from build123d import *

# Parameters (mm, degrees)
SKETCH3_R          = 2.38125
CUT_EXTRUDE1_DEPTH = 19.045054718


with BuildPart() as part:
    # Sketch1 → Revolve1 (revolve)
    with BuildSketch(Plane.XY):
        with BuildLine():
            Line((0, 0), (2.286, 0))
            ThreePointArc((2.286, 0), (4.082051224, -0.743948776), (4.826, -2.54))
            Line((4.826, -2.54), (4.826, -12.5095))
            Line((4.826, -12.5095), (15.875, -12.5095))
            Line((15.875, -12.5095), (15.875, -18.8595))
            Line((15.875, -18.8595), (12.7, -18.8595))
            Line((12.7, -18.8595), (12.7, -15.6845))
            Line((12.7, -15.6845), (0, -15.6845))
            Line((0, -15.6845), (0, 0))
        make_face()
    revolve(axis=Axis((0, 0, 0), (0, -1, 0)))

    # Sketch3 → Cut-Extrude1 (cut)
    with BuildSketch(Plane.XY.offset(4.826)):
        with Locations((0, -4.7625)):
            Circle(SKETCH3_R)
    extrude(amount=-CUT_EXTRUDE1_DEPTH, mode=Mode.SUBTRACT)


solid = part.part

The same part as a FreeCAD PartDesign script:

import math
import FreeCAD as App
import Part
import Sketcher
Q = App.Units.Quantity

doc = App.newDocument("Part")
params = doc.addObject("Spreadsheet::Sheet", "Params")
for row, (alias, value) in enumerate([
    ("sketch1_radius", "0.1 in"),
    ("sketch1_width", "0.5 in"),
    ("sketch1_width2", "0.09 in"),
    ("sketch1_height", "0.25 in"),
    ("sketch1_width3", "0.125 in"),
    ("revolution_angle", "360 deg"),
    ("sketch2_diameter", "0.1875 in"),
    ("pocket1_length", "19.045055 mm"),
], start=1):
    params.set(f"A{row}", alias)
    params.set(f"B{row}", "=" + value)
    params.setAlias(f"B{row}", alias)

body = doc.addObject("PartDesign::Body", "Body")

sketch1 = doc.addObject("Sketcher::SketchObject", "Sketch")
body.addObject(sketch1)
sketch1.AttachmentSupport = (doc.XY_Plane, [""])
sketch1.MapMode = "FlatFace"
sketch1.addGeometry([
    Part.LineSegment(App.Vector(2.3, 0, 0), App.Vector(0, 0, 0)),
    Part.LineSegment(App.Vector(0, 0, 0), App.Vector(0, -15.7, 0)),
    Part.LineSegment(App.Vector(0, -15.7, 0), App.Vector(12.7, -15.7, 0)),
    Part.LineSegment(App.Vector(12.7, -15.7, 0), App.Vector(12.7, -18.9, 0)),
    Part.LineSegment(App.Vector(12.7, -18.9, 0), App.Vector(15.9, -18.9, 0)),
    Part.LineSegment(App.Vector(15.9, -18.9, 0), App.Vector(15.9, -12.5, 0)),
    Part.LineSegment(App.Vector(15.9, -12.5, 0), App.Vector(4.8, -12.5, 0)),
    Part.LineSegment(App.Vector(4.8, -12.5, 0), App.Vector(4.8, -2.5, 0)),
    Part.ArcOfCircle(Part.Circle(App.Vector(2.3, -2.5, 0), App.Vector(0, 0, 1), 2.5), math.radians(0), math.radians(90)),
], False)
sketch1.addConstraint([
    Sketcher.Constraint("Coincident", 0, 2, 1, 1),
    Sketcher.Constraint("Coincident", 1, 2, 2, 1),
    Sketcher.Constraint("Coincident", 2, 2, 3, 1),
    Sketcher.Constraint("Coincident", 3, 2, 4, 1),
    Sketcher.Constraint("Coincident", 4, 2, 5, 1),
    Sketcher.Constraint("Coincident", 5, 2, 6, 1),
    Sketcher.Constraint("Coincident", 6, 2, 7, 1),
    Sketcher.Constraint("Tangent", 7, 2, 8, 1),
    Sketcher.Constraint("Tangent", 8, 2, 0, 1),
    Sketcher.Constraint("Horizontal", 0),
    Sketcher.Constraint("Vertical", 1),
    Sketcher.Constraint("Horizontal", 2),
    Sketcher.Constraint("Vertical", 3),
    Sketcher.Constraint("Horizontal", 4),
    Sketcher.Constraint("Vertical", 5),
    Sketcher.Constraint("Horizontal", 6),
    Sketcher.Constraint("Vertical", 7),
    Sketcher.Constraint("Coincident", 0, 2, -1, 1),
    Sketcher.Constraint("Equal", 4, 3),
    Sketcher.Constraint("Radius", 8, Q("0.1 in")),
    Sketcher.Constraint("DistanceX", 2, 1, 2, 2, Q("0.5 in")),
    Sketcher.Constraint("DistanceX", 0, 2, 0, 1, Q("0.09 in")),
    Sketcher.Constraint("DistanceY", 5, 1, 5, 2, Q("0.25 in")),
    Sketcher.Constraint("DistanceX", 4, 1, 4, 2, Q("0.125 in")),
    Sketcher.Constraint("DistanceY", 1, 2, 1, 1, Q("0.6175 in")),
])
sketch1.setExpression("Constraints[19]", "Params.sketch1_radius")
sketch1.setExpression("Constraints[20]", "Params.sketch1_width")
sketch1.setExpression("Constraints[21]", "Params.sketch1_width2")
sketch1.setExpression("Constraints[22]", "Params.sketch1_height")
sketch1.setExpression("Constraints[23]", "Params.sketch1_width3")
revolution = doc.addObject("PartDesign::Revolution", "Revolution")
body.addObject(revolution)
revolution.Profile = sketch1
revolution.ReferenceAxis = (sketch1, ["V_Axis"])
revolution.setExpression("Angle", "Params.revolution_angle")

sketch2 = doc.addObject("Sketcher::SketchObject", "Sketch001")
body.addObject(sketch2)
sketch2.AttachmentSupport = (doc.XY_Plane, [""])
sketch2.MapMode = "FlatFace"
sketch2.AttachmentOffset = App.Placement(App.Vector(0, 0, 0.19 * 25.4), App.Rotation())
sketch2.addGeometry(Part.Circle(App.Vector(0, -4.8, 0), App.Vector(0, 0, 1), 2.4), False)
sketch2.addConstraint([
    Sketcher.Constraint("PointOnObject", 0, 3, -2),
    Sketcher.Constraint("Diameter", 0, Q("0.1875 in")),
    Sketcher.Constraint("DistanceY", 0, 3, -1, 1, Q("0.1875 in")),
])
sketch2.setExpression("Constraints[1]", "Params.sketch2_diameter")
pocket1 = doc.addObject("PartDesign::Pocket", "Pocket")
body.addObject(pocket1)
pocket1.Profile = sketch2
pocket1.setExpression("Length", "Params.pocket1_length")

doc.recompute()
